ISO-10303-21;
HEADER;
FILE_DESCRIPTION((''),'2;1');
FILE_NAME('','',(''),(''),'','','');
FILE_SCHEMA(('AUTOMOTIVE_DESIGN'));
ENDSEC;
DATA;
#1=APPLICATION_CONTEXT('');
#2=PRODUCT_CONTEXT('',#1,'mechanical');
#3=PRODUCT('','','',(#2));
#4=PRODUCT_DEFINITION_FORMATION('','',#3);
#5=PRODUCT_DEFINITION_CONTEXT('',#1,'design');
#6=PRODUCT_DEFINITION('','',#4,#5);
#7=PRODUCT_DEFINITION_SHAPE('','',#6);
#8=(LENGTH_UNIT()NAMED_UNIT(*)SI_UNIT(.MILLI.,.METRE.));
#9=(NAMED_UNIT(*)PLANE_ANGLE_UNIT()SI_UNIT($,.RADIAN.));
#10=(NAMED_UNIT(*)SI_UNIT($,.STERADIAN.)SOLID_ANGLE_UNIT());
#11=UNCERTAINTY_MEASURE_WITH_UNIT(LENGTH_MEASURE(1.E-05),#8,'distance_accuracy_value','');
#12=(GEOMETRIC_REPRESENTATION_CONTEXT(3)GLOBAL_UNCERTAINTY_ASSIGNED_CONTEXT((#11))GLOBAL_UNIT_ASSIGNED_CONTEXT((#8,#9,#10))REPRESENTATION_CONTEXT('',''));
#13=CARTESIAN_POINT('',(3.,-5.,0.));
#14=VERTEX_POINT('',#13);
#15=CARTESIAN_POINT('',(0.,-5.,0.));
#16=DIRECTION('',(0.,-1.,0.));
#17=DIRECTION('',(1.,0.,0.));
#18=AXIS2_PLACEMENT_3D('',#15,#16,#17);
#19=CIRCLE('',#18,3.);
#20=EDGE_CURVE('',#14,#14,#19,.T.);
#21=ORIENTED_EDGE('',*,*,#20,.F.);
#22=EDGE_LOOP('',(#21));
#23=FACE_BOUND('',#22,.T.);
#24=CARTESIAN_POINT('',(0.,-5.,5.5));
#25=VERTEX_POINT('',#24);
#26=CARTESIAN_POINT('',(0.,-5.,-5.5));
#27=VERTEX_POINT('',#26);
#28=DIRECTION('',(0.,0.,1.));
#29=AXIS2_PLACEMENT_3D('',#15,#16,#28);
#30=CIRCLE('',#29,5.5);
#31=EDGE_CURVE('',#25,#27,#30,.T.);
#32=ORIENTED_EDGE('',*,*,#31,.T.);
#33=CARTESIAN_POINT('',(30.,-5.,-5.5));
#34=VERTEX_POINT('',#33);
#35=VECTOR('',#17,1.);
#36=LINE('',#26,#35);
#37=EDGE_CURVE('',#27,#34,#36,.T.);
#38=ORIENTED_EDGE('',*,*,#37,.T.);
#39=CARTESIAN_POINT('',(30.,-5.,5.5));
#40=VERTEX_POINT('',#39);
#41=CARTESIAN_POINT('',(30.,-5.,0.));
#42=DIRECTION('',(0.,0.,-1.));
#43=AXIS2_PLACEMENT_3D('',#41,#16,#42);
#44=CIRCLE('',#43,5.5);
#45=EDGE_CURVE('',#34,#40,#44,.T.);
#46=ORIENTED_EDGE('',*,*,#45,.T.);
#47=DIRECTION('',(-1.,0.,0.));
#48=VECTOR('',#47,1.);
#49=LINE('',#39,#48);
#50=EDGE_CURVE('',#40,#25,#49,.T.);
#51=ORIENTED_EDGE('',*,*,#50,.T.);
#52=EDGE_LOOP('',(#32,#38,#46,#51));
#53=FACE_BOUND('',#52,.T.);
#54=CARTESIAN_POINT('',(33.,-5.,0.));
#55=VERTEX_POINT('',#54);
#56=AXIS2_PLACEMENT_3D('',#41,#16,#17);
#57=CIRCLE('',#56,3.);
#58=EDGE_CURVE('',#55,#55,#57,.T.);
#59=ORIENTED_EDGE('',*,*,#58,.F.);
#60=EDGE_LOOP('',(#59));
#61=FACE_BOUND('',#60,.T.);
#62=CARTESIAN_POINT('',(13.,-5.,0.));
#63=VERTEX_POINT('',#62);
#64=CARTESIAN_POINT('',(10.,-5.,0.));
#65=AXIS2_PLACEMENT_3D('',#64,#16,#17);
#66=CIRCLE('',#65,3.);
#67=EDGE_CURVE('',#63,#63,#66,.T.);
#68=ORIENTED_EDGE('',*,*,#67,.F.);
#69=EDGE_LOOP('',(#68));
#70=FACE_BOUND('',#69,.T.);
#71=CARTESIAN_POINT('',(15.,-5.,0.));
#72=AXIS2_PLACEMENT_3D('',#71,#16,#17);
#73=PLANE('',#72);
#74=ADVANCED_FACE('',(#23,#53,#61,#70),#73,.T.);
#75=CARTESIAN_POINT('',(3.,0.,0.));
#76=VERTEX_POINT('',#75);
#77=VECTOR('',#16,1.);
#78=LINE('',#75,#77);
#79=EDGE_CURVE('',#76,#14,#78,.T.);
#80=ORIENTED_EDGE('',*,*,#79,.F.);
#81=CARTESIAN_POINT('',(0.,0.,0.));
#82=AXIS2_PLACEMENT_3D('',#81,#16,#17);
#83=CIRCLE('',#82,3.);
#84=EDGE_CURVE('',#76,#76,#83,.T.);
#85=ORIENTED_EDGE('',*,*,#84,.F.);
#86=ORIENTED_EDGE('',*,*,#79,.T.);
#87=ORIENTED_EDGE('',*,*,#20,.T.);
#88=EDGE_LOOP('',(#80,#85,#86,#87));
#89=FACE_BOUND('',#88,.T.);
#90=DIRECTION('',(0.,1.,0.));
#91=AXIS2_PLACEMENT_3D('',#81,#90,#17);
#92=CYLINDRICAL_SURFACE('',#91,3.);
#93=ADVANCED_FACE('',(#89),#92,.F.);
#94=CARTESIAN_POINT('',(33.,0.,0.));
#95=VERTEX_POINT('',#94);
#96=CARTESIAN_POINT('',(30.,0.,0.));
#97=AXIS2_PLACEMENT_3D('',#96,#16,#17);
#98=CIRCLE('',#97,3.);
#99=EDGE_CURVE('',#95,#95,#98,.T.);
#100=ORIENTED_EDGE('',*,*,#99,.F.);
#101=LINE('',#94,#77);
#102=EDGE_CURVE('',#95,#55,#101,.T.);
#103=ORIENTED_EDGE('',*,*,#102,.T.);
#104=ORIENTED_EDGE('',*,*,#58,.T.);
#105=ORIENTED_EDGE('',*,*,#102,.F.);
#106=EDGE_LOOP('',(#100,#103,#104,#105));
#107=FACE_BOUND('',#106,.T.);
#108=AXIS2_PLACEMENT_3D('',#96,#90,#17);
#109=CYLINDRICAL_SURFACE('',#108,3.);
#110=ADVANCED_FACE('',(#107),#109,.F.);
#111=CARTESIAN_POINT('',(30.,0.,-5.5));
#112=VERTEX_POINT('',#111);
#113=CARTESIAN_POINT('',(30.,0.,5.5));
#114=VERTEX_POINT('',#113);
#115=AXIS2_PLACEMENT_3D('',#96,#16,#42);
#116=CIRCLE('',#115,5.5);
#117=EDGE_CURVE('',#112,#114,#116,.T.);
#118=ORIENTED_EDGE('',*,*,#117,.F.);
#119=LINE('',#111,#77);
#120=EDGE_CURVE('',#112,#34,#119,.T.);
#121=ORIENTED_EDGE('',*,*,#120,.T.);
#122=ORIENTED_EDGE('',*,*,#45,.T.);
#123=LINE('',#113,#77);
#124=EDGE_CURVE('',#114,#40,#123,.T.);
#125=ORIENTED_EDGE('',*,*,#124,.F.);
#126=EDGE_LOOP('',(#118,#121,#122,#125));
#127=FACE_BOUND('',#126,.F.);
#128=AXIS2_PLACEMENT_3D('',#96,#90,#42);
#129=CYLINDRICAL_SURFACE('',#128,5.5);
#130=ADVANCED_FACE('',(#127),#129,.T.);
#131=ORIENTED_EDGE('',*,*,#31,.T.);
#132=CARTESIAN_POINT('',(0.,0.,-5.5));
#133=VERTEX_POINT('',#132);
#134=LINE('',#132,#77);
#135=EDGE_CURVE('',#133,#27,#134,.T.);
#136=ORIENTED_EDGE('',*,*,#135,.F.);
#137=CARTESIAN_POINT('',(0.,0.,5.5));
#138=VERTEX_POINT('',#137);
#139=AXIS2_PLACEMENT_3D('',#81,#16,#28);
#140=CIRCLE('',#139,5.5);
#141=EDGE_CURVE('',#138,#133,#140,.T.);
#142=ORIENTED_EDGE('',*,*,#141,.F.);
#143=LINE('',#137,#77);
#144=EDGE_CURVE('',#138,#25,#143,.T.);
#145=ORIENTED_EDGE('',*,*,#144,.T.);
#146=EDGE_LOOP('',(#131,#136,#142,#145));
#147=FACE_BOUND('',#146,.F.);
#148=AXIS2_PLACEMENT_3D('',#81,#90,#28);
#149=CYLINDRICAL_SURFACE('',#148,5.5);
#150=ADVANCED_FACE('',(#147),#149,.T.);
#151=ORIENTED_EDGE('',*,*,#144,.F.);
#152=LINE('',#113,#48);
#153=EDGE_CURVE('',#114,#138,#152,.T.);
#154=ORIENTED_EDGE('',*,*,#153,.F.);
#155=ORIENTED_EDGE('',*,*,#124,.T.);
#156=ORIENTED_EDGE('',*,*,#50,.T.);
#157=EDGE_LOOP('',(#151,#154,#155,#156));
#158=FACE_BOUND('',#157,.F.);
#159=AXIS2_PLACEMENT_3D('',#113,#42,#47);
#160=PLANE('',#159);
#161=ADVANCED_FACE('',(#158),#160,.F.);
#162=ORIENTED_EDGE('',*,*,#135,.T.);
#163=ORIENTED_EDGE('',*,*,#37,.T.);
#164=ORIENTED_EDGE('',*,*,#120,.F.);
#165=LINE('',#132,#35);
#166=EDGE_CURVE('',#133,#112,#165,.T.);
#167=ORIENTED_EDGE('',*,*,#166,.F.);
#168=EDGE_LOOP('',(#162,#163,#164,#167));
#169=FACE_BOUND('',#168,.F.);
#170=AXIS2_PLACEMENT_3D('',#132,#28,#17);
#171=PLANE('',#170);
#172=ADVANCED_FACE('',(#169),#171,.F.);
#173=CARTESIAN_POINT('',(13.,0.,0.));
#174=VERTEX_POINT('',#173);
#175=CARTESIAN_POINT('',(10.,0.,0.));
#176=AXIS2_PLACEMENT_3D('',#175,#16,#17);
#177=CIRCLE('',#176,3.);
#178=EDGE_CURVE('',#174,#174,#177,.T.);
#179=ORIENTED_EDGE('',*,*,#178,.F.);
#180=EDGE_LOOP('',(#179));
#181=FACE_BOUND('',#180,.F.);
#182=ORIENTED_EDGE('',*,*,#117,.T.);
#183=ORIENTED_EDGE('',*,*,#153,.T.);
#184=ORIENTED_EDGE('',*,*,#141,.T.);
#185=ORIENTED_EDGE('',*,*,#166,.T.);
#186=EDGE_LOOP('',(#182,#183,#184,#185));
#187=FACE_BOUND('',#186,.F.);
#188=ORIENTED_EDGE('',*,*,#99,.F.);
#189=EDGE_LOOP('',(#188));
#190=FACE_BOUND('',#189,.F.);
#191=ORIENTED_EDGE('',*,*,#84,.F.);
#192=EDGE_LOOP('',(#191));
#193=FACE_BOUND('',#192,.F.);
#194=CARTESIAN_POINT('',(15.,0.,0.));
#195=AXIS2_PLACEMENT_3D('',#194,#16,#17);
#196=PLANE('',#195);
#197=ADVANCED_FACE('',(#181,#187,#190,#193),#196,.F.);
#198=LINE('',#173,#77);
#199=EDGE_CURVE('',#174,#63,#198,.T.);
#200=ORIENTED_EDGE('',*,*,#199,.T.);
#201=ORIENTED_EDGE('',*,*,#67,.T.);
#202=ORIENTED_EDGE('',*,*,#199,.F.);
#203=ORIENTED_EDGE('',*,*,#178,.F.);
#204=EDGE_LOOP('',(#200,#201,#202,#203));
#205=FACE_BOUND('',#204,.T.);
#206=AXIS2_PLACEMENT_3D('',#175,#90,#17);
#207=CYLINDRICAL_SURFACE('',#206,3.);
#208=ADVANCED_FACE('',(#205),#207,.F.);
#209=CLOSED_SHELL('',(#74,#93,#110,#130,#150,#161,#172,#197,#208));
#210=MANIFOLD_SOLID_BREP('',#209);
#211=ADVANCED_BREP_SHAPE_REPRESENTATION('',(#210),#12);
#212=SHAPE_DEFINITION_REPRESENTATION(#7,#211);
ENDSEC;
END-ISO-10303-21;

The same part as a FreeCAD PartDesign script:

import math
import FreeCAD as App
import Part
import Sketcher

doc = App.newDocument("Part")
body = doc.addObject("PartDesign::Body", "Body")

# Sketch on XZ plane
sketch1 = body.newObject("Sketcher::SketchObject", "Sketch")
sketch1.AttachmentSupport = (doc.getObject("XZ_Plane"), [""])
sketch1.MapMode = "FlatFace"
sketch1.addGeometry([
    Part.LineSegment(App.Vector(30, 5.5, 0), App.Vector(0, 5.5, 0)),  # 0
    Part.ArcOfCircle(Part.Circle(App.Vector(0, 0, 0), App.Vector(0, 0, 1), 5.5), math.radians(90), math.radians(270)),  # 1
    Part.LineSegment(App.Vector(0, -5.5, 0), App.Vector(30, -5.5, 0)),  # 2
    Part.ArcOfCircle(Part.Circle(App.Vector(30, 0, 0), App.Vector(0, 0, 1), 5.5), math.radians(-90), math.radians(90)),  # 3
    Part.Circle(App.Vector(0, 0, 0), App.Vector(0, 0, 1), 3),  # 4
    Part.Circle(App.Vector(10, 0, 0), App.Vector(0, 0, 1), 3),  # 5
    Part.Circle(App.Vector(30, 0, 0), App.Vector(0, 0, 1), 3),  # 6
], False)
sketch1.addConstraint([
    Sketcher.Constraint("Tangent", 0, 2, 1, 1),
    Sketcher.Constraint("Tangent", 1, 2, 2, 1),
    Sketcher.Constraint("Tangent", 2, 2, 3, 1),
    Sketcher.Constraint("Tangent", 3, 2, 0, 1),
    Sketcher.Constraint("Horizontal", 0),
    Sketcher.Constraint("Horizontal", 2),
    Sketcher.Constraint("Coincident", 1, 3, -1, 1),
    Sketcher.Constraint("Coincident", 4, 3, -1, 1),
    Sketcher.Constraint("Coincident", 6, 3, 3, 3),
    Sketcher.Constraint("Equal", 4, 5),
    Sketcher.Constraint("Equal", 5, 6),
    Sketcher.Constraint("PointOnObject", 5, 3, -1),
    Sketcher.Constraint("Diameter", 4, 6.0),
    Sketcher.Constraint("Radius", 1, 5.5),
    Sketcher.Constraint("DistanceX", 0, 2, 0, 1, 30.0),
    Sketcher.Constraint("DistanceX", -1, 1, 5, 3, 10.0),
])
pad1 = body.newObject("PartDesign::Pad", "Pad")
pad1.Profile = sketch1
pad1.Length = 5

doc.recompute()
